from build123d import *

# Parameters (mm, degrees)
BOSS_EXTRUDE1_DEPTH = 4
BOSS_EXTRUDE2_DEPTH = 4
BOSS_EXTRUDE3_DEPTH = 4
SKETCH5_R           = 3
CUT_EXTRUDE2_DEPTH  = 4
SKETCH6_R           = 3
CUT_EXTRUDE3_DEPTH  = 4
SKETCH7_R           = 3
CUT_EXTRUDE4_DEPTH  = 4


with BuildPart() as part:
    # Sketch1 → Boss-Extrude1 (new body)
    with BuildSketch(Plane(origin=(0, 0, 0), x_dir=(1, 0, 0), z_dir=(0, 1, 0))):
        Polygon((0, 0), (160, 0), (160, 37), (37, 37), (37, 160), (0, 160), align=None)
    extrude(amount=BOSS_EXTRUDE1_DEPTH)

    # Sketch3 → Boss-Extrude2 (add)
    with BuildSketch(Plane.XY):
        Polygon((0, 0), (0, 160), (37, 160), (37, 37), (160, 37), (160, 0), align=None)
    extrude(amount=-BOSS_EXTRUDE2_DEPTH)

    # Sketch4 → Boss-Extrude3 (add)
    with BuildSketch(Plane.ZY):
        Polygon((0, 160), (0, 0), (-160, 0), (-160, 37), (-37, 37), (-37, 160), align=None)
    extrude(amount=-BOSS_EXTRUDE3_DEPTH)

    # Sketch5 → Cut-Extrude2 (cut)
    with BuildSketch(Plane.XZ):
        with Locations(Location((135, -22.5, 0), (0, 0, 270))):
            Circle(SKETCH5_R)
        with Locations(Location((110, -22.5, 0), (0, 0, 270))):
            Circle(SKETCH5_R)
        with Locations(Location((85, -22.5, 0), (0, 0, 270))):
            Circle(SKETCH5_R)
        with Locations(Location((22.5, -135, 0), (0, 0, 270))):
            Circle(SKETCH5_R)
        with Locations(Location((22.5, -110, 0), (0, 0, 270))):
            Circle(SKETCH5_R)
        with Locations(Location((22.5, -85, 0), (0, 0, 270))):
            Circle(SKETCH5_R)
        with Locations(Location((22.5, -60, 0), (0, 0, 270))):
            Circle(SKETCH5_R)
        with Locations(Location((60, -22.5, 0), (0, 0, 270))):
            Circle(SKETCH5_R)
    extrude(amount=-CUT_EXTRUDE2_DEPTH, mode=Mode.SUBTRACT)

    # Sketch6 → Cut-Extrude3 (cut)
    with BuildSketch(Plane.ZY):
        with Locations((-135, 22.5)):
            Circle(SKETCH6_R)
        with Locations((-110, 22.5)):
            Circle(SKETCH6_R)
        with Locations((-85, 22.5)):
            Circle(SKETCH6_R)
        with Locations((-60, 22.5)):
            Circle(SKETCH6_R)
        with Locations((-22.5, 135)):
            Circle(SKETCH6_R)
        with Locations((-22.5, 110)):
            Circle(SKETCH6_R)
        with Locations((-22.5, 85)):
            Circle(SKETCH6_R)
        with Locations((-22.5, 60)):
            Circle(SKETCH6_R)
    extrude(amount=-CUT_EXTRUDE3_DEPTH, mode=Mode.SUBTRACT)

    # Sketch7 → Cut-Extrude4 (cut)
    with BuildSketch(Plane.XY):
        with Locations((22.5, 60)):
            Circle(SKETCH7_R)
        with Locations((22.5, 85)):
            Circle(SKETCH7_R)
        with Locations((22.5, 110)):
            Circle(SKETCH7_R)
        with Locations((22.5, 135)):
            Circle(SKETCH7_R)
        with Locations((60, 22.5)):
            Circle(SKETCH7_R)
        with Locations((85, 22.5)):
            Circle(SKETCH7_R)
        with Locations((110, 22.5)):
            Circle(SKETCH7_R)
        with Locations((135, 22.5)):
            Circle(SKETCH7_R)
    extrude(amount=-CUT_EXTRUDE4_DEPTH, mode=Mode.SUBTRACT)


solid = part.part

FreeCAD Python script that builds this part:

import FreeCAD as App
import Part
import Sketcher
from FreeCAD import Vector

doc = App.newDocument("Part")
body = doc.addObject("PartDesign::Body", "Body")

# Sketch on XZ plane
sketch1 = doc.addObject("Sketcher::SketchObject", "Sketch")
body.addObject(sketch1)
sketch1.AttachmentSupport = (doc.XZ_Plane, [""])
sketch1.MapMode = "FlatFace"
sketch1.addGeometry([
    Part.LineSegment(Vector(0, 0, 0), Vector(160, 0, 0)),  # 0
    Part.LineSegment(Vector(160, 0, 0), Vector(160, -37, 0)),  # 1
    Part.LineSegment(Vector(160, -37, 0), Vector(37, -37, 0)),  # 2
    Part.LineSegment(Vector(37, -37, 0), Vector(37, -160, 0)),  # 3
    Part.LineSegment(Vector(37, -160, 0), Vector(0, -160, 0)),  # 4
    Part.LineSegment(Vector(0, -160, 0), Vector(0, 0, 0)),  # 5
], False)
sketch1.addConstraint([
    Sketcher.Constraint("Coincident", 0, 2, 1, 1),
    Sketcher.Constraint("Coincident", 1, 2, 2, 1),
    Sketcher.Constraint("Coincident", 2, 2, 3, 1),
    Sketcher.Constraint("Coincident", 3, 2, 4, 1),
    Sketcher.Constraint("Coincident", 4, 2, 5, 1),
    Sketcher.Constraint("Coincident", 5, 2, 0, 1),
    Sketcher.Constraint("Horizontal", 0),
    Sketcher.Constraint("Vertical", 1),
    Sketcher.Constraint("Horizontal", 2),
    Sketcher.Constraint("Vertical", 3),
    Sketcher.Constraint("Horizontal", 4),
    Sketcher.Constraint("Vertical", 5),
    Sketcher.Constraint("Coincident", 5, 2, -1, 1),
    Sketcher.Constraint("Equal", 4, 1),
    Sketcher.Constraint("Equal", 2, 3),
    Sketcher.Constraint("DistanceX", 0, 1, 0, 2, 160.0),
    Sketcher.Constraint("DistanceX", 2, 2, 2, 1, 123.0),
])
pad1 = doc.addObject("PartDesign::Pad", "Pad")
body.addObject(pad1)
pad1.Profile = sketch1
pad1.Length = 4
pad1.Reversed = True

# Sketch on XY plane
sketch2 = doc.addObject("Sketcher::SketchObject", "Sketch001")
body.addObject(sketch2)
sketch2.AttachmentSupport = (doc.XY_Plane, [""])
sketch2.MapMode = "FlatFace"
sketch2.addGeometry([
    Part.LineSegment(Vector(0, 160, 0), Vector(0, 0, 0)),  # 0
    Part.LineSegment(Vector(0, 0, 0), Vector(160, 0, 0)),  # 1
    Part.LineSegment(Vector(160, 0, 0), Vector(160, 37, 0)),  # 2
    Part.LineSegment(Vector(160, 37, 0), Vector(37, 37, 0)),  # 3
    Part.LineSegment(Vector(37, 37, 0), Vector(37, 160, 0)),  # 4
    Part.LineSegment(Vector(37, 160, 0), Vector(0, 160, 0)),  # 5
], False)
sketch2.addConstraint([
    Sketcher.Constraint("Coincident", 0, 2, 1, 1),
    Sketcher.Constraint("Coincident", 1, 2, 2, 1),
    Sketcher.Constraint("Coincident", 2, 2, 3, 1),
    Sketcher.Constraint("Coincident", 3, 2, 4, 1),
    Sketcher.Constraint("Coincident", 4, 2, 5, 1),
    Sketcher.Constraint("Coincident", 5, 2, 0, 1),
    Sketcher.Constraint("Vertical", 0),
    Sketcher.Constraint("Horizontal", 1),
    Sketcher.Constraint("Vertical", 2),
    Sketcher.Constraint("Horizontal", 3),
    Sketcher.Constraint("Vertical", 4),
    Sketcher.Constraint("Horizontal", 5),
    Sketcher.Constraint("Coincident", 0, 2, -1, 1),
    Sketcher.Constraint("Equal", 1, 0),
    Sketcher.Constraint("Equal", 5, 2),
    Sketcher.Constraint("DistanceX", 1, 1, 1, 2, 160.0),
    Sketcher.Constraint("DistanceX", 3, 2, 3, 1, 123.0),
])
pad2 = doc.addObject("PartDesign::Pad", "Pad001")
body.addObject(pad2)
pad2.Profile = sketch2
pad2.Length = 4
pad2.Reversed = True

# Sketch on YZ plane
sketch3 = doc.addObject("Sketcher::SketchObject", "Sketch002")
body.addObject(sketch3)
sketch3.AttachmentSupport = (doc.YZ_Plane, [""])
sketch3.MapMode = "FlatFace"
sketch3.addGeometry([
    Part.LineSegment(Vector(0, 0, 0), Vector(160, 0, 0)),  # 0
    Part.LineSegment(Vector(160, 0, 0), Vector(160, -37, 0)),  # 1
    Part.LineSegment(Vector(160, -37, 0), Vector(37, -37, 0)),  # 2
    Part.LineSegment(Vector(37, -37, 0), Vector(37, -160, 0)),  # 3
    Part.LineSegment(Vector(37, -160, 0), Vector(0, -160, 0)),  # 4
    Part.LineSegment(Vector(0, -160, 0), Vector(0, 0, 0)),  # 5
], False)
sketch3.addConstraint([
    Sketcher.Constraint("Coincident", 0, 2, 1, 1),
    Sketcher.Constraint("Coincident", 1, 2, 2, 1),
    Sketcher.Constraint("Coincident", 2, 2, 3, 1),
    Sketcher.Constraint("Coincident", 3, 2, 4, 1),
    Sketcher.Constraint("Coincident", 4, 2, 5, 1),
    Sketcher.Constraint("Coincident", 5, 2, 0, 1),
    Sketcher.Constraint("Horizontal", 0),
    Sketcher.Constraint("Vertical", 1),
    Sketcher.Constraint("Horizontal", 2),
    Sketcher.Constraint("Vertical", 3),
    Sketcher.Constraint("Horizontal", 4),
    Sketcher.Constraint("Vertical", 5),
    Sketcher.Constraint("Coincident", 5, 2, -1, 1),
    Sketcher.Constraint("Equal", 4, 1),
    Sketcher.Constraint("Equal", 2, 3),
    Sketcher.Constraint("DistanceX", 0, 1, 0, 2, 160.0),
    Sketcher.Constraint("DistanceX", 2, 2, 2, 1, 123.0),
])
pad3 = doc.addObject("PartDesign::Pad", "Pad002")
body.addObject(pad3)
pad3.Profile = sketch3
pad3.Length = 4

# Sketch on XZ plane
sketch4 = doc.addObject("Sketcher::SketchObject", "Sketch003")
body.addObject(sketch4)
sketch4.AttachmentSupport = (doc.XZ_Plane, [""])
sketch4.MapMode = "FlatFace"
sketch4.addGeometry([
    Part.Circle(Vector(135, -22.5, 0), Vector(0, 0, 1), 3),  # 0
    Part.Circle(Vector(110, -22.5, 0), Vector(0, 0, 1), 3),  # 1
    Part.Circle(Vector(85, -22.5, 0), Vector(0, 0, 1), 3),  # 2
    Part.Circle(Vector(22.5, -135, 0), Vector(0, 0, 1), 3),  # 3
    Part.Circle(Vector(22.5, -110, 0), Vector(0, 0, 1), 3),  # 4
    Part.Circle(Vector(22.5, -85, 0), Vector(0, 0, 1), 3),  # 5
    Part.Circle(Vector(22.5, -60, 0), Vector(0, 0, 1), 3),  # 6
    Part.Circle(Vector(60, -22.5, 0), Vector(0, 0, 1), 3),  # 7
], False)
sketch4.addConstraint([
    Sketcher.Constraint("Equal", 0, 1),
    Sketcher.Constraint("Equal", 1, 2),
    Sketcher.Constraint("Equal", 2, 3),
    Sketcher.Constraint("Equal", 3, 4),
    Sketcher.Constraint("Equal", 4, 5),
    Sketcher.Constraint("Equal", 5, 6),
    Sketcher.Constraint("Equal", 6, 7),
    Sketcher.Constraint("Horizontal", 0, 3, 1, 3),
    Sketcher.Constraint("Horizontal", 1, 3, 2, 3),
    Sketcher.Constraint("Horizontal", 2, 3, 7, 3),
    Sketcher.Constraint("Vertical", 3, 3, 4, 3),
    Sketcher.Constraint("Vertical", 4, 3, 5, 3),
    Sketcher.Constraint("Vertical", 5, 3, 6, 3),
    Sketcher.Constraint("Diameter", 0, 6.0),
    Sketcher.Constraint("DistanceX", -1, 1, 0, 3, 135.0),
    Sketcher.Constraint("DistanceX", -1, 1, 1, 3, 110.0),
    Sketcher.Constraint("DistanceX", -1, 1, 2, 3, 85.0),
    Sketcher.Constraint("DistanceY", 3, 3, -1, 1, 135.0),
    Sketcher.Constraint("DistanceY", 4, 3, -1, 1, 110.0),
    Sketcher.Constraint("DistanceY", 5, 3, -1, 1, 85.0),
    Sketcher.Constraint("DistanceY", 6, 3, -1, 1, 60.0),
    Sketcher.Constraint("DistanceX", -1, 1, 7, 3, 60.0),
    Sketcher.Constraint("DistanceY", 0, 3, -1, 1, 22.5),
    Sketcher.Constraint("DistanceX", -1, 1, 3, 3, 22.5),
])
pocket1 = doc.addObject("PartDesign::Pocket", "Pocket")
body.addObject(pocket1)
pocket1.Profile = sketch4
pocket1.Length = 4

# Sketch on YZ plane
sketch5 = doc.addObject("Sketcher::SketchObject", "Sketch004")
body.addObject(sketch5)
sketch5.AttachmentSupport = (doc.YZ_Plane, [""])
sketch5.MapMode = "FlatFace"
sketch5.addGeometry([
    Part.Circle(Vector(22.5, -135, 0), Vector(0, 0, 1), 3),  # 0
    Part.Circle(Vector(22.5, -110, 0), Vector(0, 0, 1), 3),  # 1
    Part.Circle(Vector(22.5, -85, 0), Vector(0, 0, 1), 3),  # 2
    Part.Circle(Vector(22.5, -60, 0), Vector(0, 0, 1), 3),  # 3
    Part.Circle(Vector(135, -22.5, 0), Vector(0, 0, 1), 3),  # 4
    Part.Circle(Vector(110, -22.5, 0), Vector(0, 0, 1), 3),  # 5
    Part.Circle(Vector(85, -22.5, 0), Vector(0, 0, 1), 3),  # 6
    Part.Circle(Vector(60, -22.5, 0), Vector(0, 0, 1), 3),  # 7
], False)
sketch5.addConstraint([
    Sketcher.Constraint("Equal", 0, 1),
    Sketcher.Constraint("Equal", 1, 2),
    Sketcher.Constraint("Equal", 2, 3),
    Sketcher.Constraint("Equal", 3, 4),
    Sketcher.Constraint("Equal", 4, 5),
    Sketcher.Constraint("Equal", 5, 6),
    Sketcher.Constraint("Equal", 6, 7),
    Sketcher.Constraint("Horizontal", 4, 3, 5, 3),
    Sketcher.Constraint("Horizontal", 5, 3, 6, 3),
    Sketcher.Constraint("Horizontal", 6, 3, 7, 3),
    Sketcher.Constraint("Vertical", 0, 3, 1, 3),
    Sketcher.Constraint("Vertical", 1, 3, 2, 3),
    Sketcher.Constraint("Vertical", 2, 3, 3, 3),
    Sketcher.Constraint("Diameter", 0, 6.0),
    Sketcher.Constraint("DistanceY", 0, 3, -1, 1, 135.0),
    Sketcher.Constraint("DistanceY", 1, 3, -1, 1, 110.0),
    Sketcher.Constraint("DistanceY", 2, 3, -1, 1, 85.0),
    Sketcher.Constraint("DistanceY", 3, 3, -1, 1, 60.0),
    Sketcher.Constraint("DistanceX", -1, 1, 4, 3, 135.0),
    Sketcher.Constraint("DistanceX", -1, 1, 5, 3, 110.0),
    Sketcher.Constraint("DistanceX", -1, 1, 6, 3, 85.0),
    Sketcher.Constraint("DistanceX", -1, 1, 7, 3, 60.0),
    Sketcher.Constraint("DistanceX", -1, 1, 0, 3, 22.5),
    Sketcher.Constraint("DistanceY", 4, 3, -1, 1, 22.5),
])
pocket2 = doc.addObject("PartDesign::Pocket", "Pocket001")
body.addObject(pocket2)
pocket2.Profile = sketch5
pocket2.Length = 4
pocket2.Reversed = True

# Sketch on XY plane
sketch6 = doc.addObject("Sketcher::SketchObject", "Sketch005")
body.addObject(sketch6)
sketch6.AttachmentSupport = (doc.XY_Plane, [""])
sketch6.MapMode = "FlatFace"
sketch6.addGeometry([
    Part.Circle(Vector(22.5, 60, 0), Vector(0, 0, 1), 3),  # 0
    Part.Circle(Vector(22.5, 85, 0), Vector(0, 0, 1), 3),  # 1
    Part.Circle(Vector(22.5, 110, 0), Vector(0, 0, 1), 3),  # 2
    Part.Circle(Vector(22.5, 135, 0), Vector(0, 0, 1), 3),  # 3
    Part.Circle(Vector(60, 22.5, 0), Vector(0, 0, 1), 3),  # 4
    Part.Circle(Vector(85, 22.5, 0), Vector(0, 0, 1), 3),  # 5
    Part.Circle(Vector(110, 22.5, 0), Vector(0, 0, 1), 3),  # 6
    Part.Circle(Vector(135, 22.5, 0), Vector(0, 0, 1), 3),  # 7
], False)
sketch6.addConstraint([
    Sketcher.Constraint("Equal", 0, 1),
    Sketcher.Constraint("Equal", 1, 2),
    Sketcher.Constraint("Equal", 2, 3),
    Sketcher.Constraint("Equal", 3, 4),
    Sketcher.Constraint("Equal", 4, 5),
    Sketcher.Constraint("Equal", 5, 6),
    Sketcher.Constraint("Equal", 6, 7),
    Sketcher.Constraint("Horizontal", 4, 3, 5, 3),
    Sketcher.Constraint("Horizontal", 5, 3, 6, 3),
    Sketcher.Constraint("Horizontal", 6, 3, 7, 3),
    Sketcher.Constraint("Vertical", 0, 3, 1, 3),
    Sketcher.Constraint("Vertical", 1, 3, 2, 3),
    Sketcher.Constraint("Vertical", 2, 3, 3, 3),
    Sketcher.Constraint("Diameter", 0, 6.0),
    Sketcher.Constraint("DistanceY", -1, 1, 0, 3, 60.0),
    Sketcher.Constraint("DistanceY", -1, 1, 1, 3, 85.0),
    Sketcher.Constraint("DistanceY", -1, 1, 2, 3, 110.0),
    Sketcher.Constraint("DistanceY", -1, 1, 3, 3, 135.0),
    Sketcher.Constraint("DistanceX", -1, 1, 4, 3, 60.0),
    Sketcher.Constraint("DistanceX", -1, 1, 5, 3, 85.0),
    Sketcher.Constraint("DistanceX", -1, 1, 6, 3, 110.0),
    Sketcher.Constraint("DistanceX", -1, 1, 7, 3, 135.0),
    Sketcher.Constraint("DistanceX", -1, 1, 0, 3, 22.5),
    Sketcher.Constraint("DistanceY", -1, 1, 4, 3, 22.5),
])
pocket3 = doc.addObject("PartDesign::Pocket", "Pocket002")
body.addObject(pocket3)
pocket3.Profile = sketch6
pocket3.Length = 4

doc.recompute()
